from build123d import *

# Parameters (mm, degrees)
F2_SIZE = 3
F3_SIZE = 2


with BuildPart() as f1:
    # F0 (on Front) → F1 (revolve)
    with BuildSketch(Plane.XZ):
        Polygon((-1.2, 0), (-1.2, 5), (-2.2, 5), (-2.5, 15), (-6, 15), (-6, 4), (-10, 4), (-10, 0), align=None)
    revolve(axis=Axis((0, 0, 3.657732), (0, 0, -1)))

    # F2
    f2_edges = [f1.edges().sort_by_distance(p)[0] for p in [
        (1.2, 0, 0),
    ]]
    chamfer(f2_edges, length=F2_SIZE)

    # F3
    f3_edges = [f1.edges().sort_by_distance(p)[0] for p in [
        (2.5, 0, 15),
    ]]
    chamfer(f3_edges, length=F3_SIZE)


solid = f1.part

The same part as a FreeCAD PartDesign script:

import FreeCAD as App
import Part
import Sketcher


def edges_at(feature, points):
    """Names of the edges that pass closest to the given points."""
    edges = feature.Shape.Edges
    near = lambda p: min(range(len(edges)), key=lambda i: edges[i].distToShape(Part.Vertex(*p))[0])
    return sorted({f"Edge{near(p) + 1}" for p in points})

doc = App.newDocument("Part")
params = doc.addObject("Spreadsheet::Sheet", "Params")
for row, (alias, value) in enumerate([
    ("sketch1_width", "1 mm"),
    ("sketch1_width2", "4 mm"),
    ("sketch1_height", "5 mm"),
    ("sketch1_height2", "11 mm"),
    ("sketch1_width3", "3.5 mm"),
    ("revolution_angle", "360 deg"),
    ("chamfer_size", "3 mm"),
    ("chamfer2_size", "2 mm"),
], start=1):
    params.set(f"A{row}", alias)
    params.set(f"B{row}", "=" + value)
    params.setAlias(f"B{row}", alias)

body = doc.addObject("PartDesign::Body", "Body")

# Sketch on XZ plane
sketch1 = body.newObject("Sketcher::SketchObject", "Sketch")
sketch1.AttachmentSupport = (doc.getObject("XZ_Plane"), [""])
sketch1.MapMode = "FlatFace"
sketch1.addGeometry(Part.LineSegment(App.Vector(-1.2, 0, 0), App.Vector(-1.2, 5, 0)), False)
sketch1.addGeometry(Part.LineSegment(App.Vector(-1.2, 5, 0), App.Vector(-2.2, 5, 0)), False)
sketch1.addGeometry(Part.LineSegment(App.Vector(-2.2, 5, 0), App.Vector(-2.5, 15, 0)), False)
sketch1.addGeometry(Part.LineSegment(App.Vector(-2.5, 15, 0), App.Vector(-6, 15, 0)), False)
sketch1.addGeometry(Part.LineSegment(App.Vector(-6, 15, 0), App.Vector(-6, 4, 0)), False)
sketch1.addGeometry(Part.LineSegment(App.Vector(-6, 4, 0), App.Vector(-10, 4, 0)), False)
sketch1.addGeometry(Part.LineSegment(App.Vector(-10, 4, 0), App.Vector(-10, 0, 0)), False)
sketch1.addGeometry(Part.LineSegment(App.Vector(-10, 0, 0), App.Vector(-1.2, 0, 0)), False)
sketch1.addConstraint(Sketcher.Constraint("Coincident", 0, 2, 1, 1))
sketch1.addConstraint(Sketcher.Constraint("Coincident", 1, 2, 2, 1))
sketch1.addConstraint(Sketcher.Constraint("Coincident", 2, 2, 3, 1))
sketch1.addConstraint(Sketcher.Constraint("Coincident", 3, 2, 4, 1))
sketch1.addConstraint(Sketcher.Constraint("Coincident", 4, 2, 5, 1))
sketch1.addConstraint(Sketcher.Constraint("Coincident", 5, 2, 6, 1))
sketch1.addConstraint(Sketcher.Constraint("Coincident", 6, 2, 7, 1))
sketch1.addConstraint(Sketcher.Constraint("Coincident", 7, 2, 0, 1))
sketch1.addConstraint(Sketcher.Constraint("Vertical", 0))
sketch1.addConstraint(Sketcher.Constraint("Horizontal", 1))
sketch1.addConstraint(Sketcher.Constraint("Horizontal", 3))
sketch1.addConstraint(Sketcher.Constraint("Vertical", 4))
sketch1.addConstraint(Sketcher.Constraint("Horizontal", 5))
sketch1.addConstraint(Sketcher.Constraint("Vertical", 6))
sketch1.addConstraint(Sketcher.Constraint("Horizontal", 7))
sketch1.addConstraint(Sketcher.Constraint("PointOnObject", 6, 2, -1))
sketch1.addConstraint(Sketcher.Constraint("Equal", 5, 6))
sketch1.addConstraint(Sketcher.Constraint("DistanceX", 1, 2, 1, 1, 1.0))
sketch1.addConstraint(Sketcher.Constraint("DistanceX", 5, 2, 5, 1, 4.0))
sketch1.addConstraint(Sketcher.Constraint("DistanceY", 0, 1, 0, 2, 5.0))
sketch1.addConstraint(Sketcher.Constraint("DistanceY", 4, 2, 4, 1, 11.0))
sketch1.addConstraint(Sketcher.Constraint("DistanceX", 3, 2, 3, 1, 3.5))
sketch1.addConstraint(Sketcher.Constraint("DistanceX", 7, 1, 7, 2, 8.8))
sketch1.addConstraint(Sketcher.Constraint("DistanceX", 3, 2, -1, 1, 6.0))
sketch1.setExpression("Constraints[17]", "Params.sketch1_width")
sketch1.setExpression("Constraints[18]", "Params.sketch1_width2")
sketch1.setExpression("Constraints[19]", "Params.sketch1_height")
sketch1.setExpression("Constraints[20]", "Params.sketch1_height2")
sketch1.setExpression("Constraints[21]", "Params.sketch1_width3")
revolution = body.newObject("PartDesign::Revolution", "Revolution")
revolution.Profile = sketch1
revolution.ReferenceAxis = (sketch1, ["V_Axis"])
revolution.setExpression("Angle", "Params.revolution_angle")
doc.recompute()

chamfer = body.newObject("PartDesign::Chamfer", "Chamfer")
chamfer.Base = (revolution, edges_at(revolution, [(1.2, 0, 0)]))
chamfer.setExpression("Size", "Params.chamfer_size")
doc.recompute()

chamfer2 = body.newObject("PartDesign::Chamfer", "Chamfer001")
chamfer2.Base = (chamfer, edges_at(chamfer, [(2.5, 0, 15)]))
chamfer2.setExpression("Size", "Params.chamfer2_size")

doc.recompute()
